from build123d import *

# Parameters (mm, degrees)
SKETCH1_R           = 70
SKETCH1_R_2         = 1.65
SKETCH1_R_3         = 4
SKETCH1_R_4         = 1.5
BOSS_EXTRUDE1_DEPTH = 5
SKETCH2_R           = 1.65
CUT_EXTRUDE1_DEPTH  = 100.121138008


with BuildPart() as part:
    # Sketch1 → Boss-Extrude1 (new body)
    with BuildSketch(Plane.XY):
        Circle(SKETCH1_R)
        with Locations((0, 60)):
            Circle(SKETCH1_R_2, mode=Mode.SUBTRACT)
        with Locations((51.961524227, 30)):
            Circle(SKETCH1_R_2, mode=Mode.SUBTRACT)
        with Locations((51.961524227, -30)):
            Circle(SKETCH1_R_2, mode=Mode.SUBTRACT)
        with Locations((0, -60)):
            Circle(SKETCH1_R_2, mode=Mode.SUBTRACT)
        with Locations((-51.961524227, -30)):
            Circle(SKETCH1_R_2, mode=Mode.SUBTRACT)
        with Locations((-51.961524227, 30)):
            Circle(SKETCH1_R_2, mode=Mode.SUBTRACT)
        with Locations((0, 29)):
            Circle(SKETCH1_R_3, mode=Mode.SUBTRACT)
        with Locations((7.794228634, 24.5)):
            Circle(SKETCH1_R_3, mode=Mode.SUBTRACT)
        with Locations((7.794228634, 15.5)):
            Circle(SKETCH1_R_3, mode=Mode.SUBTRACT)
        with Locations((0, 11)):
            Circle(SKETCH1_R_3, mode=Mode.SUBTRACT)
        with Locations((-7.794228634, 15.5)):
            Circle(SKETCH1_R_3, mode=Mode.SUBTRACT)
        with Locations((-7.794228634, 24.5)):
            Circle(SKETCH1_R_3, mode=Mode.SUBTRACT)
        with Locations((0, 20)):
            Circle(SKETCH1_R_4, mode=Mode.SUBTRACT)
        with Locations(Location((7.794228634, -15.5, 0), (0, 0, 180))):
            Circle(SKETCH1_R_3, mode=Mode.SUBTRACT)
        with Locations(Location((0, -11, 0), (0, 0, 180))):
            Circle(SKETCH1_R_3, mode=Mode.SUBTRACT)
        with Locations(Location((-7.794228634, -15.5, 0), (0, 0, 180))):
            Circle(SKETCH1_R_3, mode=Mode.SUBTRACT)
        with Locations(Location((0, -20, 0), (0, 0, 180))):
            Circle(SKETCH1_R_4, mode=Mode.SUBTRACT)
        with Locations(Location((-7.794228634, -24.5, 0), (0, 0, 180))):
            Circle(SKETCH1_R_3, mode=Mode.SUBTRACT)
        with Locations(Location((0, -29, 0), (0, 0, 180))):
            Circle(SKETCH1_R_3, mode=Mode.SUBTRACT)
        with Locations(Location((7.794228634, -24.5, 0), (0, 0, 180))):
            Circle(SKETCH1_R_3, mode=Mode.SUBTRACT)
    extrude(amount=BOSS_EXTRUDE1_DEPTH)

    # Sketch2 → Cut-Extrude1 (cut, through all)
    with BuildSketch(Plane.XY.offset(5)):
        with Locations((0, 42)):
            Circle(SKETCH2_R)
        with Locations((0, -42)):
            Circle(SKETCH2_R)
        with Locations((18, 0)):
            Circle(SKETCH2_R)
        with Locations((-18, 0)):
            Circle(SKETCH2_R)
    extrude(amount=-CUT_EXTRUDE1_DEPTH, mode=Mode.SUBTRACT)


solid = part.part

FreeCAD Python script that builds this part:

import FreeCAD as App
import Part
import Sketcher
Q = App.Units.Quantity

doc = App.newDocument("Part")
params = doc.addObject("Spreadsheet::Sheet", "Params")
for row, (alias, value) in enumerate([
    ("sketch1_diameter", "140 mm"),
    ("sketch1_diameter2", "8 mm"),
    ("sketch1_diameter3", "3 mm"),
    ("sketch1_diameter4", "3.3 mm"),
    ("pad1_length", "5 mm"),
    ("sketch2_diameter", "3.3 mm"),
], start=1):
    params.set(f"A{row}", alias)
    params.set(f"B{row}", "=" + value)
    params.setAlias(f"B{row}", alias)

body = doc.addObject("PartDesign::Body", "Body")

# Sketch on XY plane
sketch1 = doc.addObject("Sketcher::SketchObject", "Sketch")
body.addObject(sketch1)
sketch1.AttachmentSupport = (doc.XY_Plane, [""])
sketch1.MapMode = "FlatFace"
sketch1.addGeometry(Part.Circle(App.Vector(0, 0, 0), App.Vector(0, 0, 1), 70), False)
sketch1.addGeometry(Part.Circle(App.Vector(0, -60, 0), App.Vector(0, 0, 1), 1.6), False)
sketch1.addGeometry(Part.Circle(App.Vector(-52, -30, 0), App.Vector(0, 0, 1), 1.6), False)
sketch1.addGeometry(Part.Circle(App.Vector(-7.8, -24.5, 0), App.Vector(0, 0, 1), 4), False)
sketch1.addGeometry(Part.Circle(App.Vector(0, -29, 0), App.Vector(0, 0, 1), 4), False)
sketch1.addGeometry(Part.Circle(App.Vector(-7.8, -15.5, 0), App.Vector(0, 0, 1), 4), False)
sketch1.addGeometry(Part.Circle(App.Vector(0, -20, 0), App.Vector(0, 0, 1), 1.5), False)
sketch1.addGeometry(Part.Circle(App.Vector(0, -11, 0), App.Vector(0, 0, 1), 4), False)
sketch1.addGeometry(Part.Circle(App.Vector(7.8, -24.5, 0), App.Vector(0, 0, 1), 4), False)
sketch1.addGeometry(Part.Circle(App.Vector(7.8, -15.5, 0), App.Vector(0, 0, 1), 4), False)
sketch1.addGeometry(Part.Circle(App.Vector(52, -30, 0), App.Vector(0, 0, 1), 1.6), False)
sketch1.addGeometry(Part.Circle(App.Vector(-52, 30, 0), App.Vector(0, 0, 1), 1.6), False)
sketch1.addGeometry(Part.Circle(App.Vector(0, 11, 0), App.Vector(0, 0, 1), 4), False)
sketch1.addGeometry(Part.Circle(App.Vector(-7.8, 15.5, 0), App.Vector(0, 0, 1), 4), False)
sketch1.addGeometry(Part.Circle(App.Vector(0, 20, 0), App.Vector(0, 0, 1), 1.5), False)
sketch1.addGeometry(Part.Circle(App.Vector(-7.8, 24.5, 0), App.Vector(0, 0, 1), 4), False)
sketch1.addGeometry(Part.Circle(App.Vector(0, 29, 0), App.Vector(0, 0, 1), 4), False)
sketch1.addGeometry(Part.Circle(App.Vector(0, 60, 0), App.Vector(0, 0, 1), 1.6), False)
sketch1.addGeometry(Part.Circle(App.Vector(7.8, 15.5, 0), App.Vector(0, 0, 1), 4), False)
sketch1.addGeometry(Part.Circle(App.Vector(7.8, 24.5, 0), App.Vector(0, 0, 1), 4), False)
sketch1.addGeometry(Part.Circle(App.Vector(52, 30, 0), App.Vector(0, 0, 1), 1.6), False)
sketch1.addConstraint(Sketcher.Constraint("Coincident", 0, 3, -1, 1))
sketch1.addConstraint(Sketcher.Constraint("Equal", 1, 2))
sketch1.addConstraint(Sketcher.Constraint("Equal", 3, 4))
sketch1.addConstraint(Sketcher.Constraint("Equal", 4, 5))
sketch1.addConstraint(Sketcher.Constraint("Equal", 5, 7))
sketch1.addConstraint(Sketcher.Constraint("Equal", 7, 8))
sketch1.addConstraint(Sketcher.Constraint("Equal", 8, 9))
sketch1.addConstraint(Sketcher.Constraint("Equal", 2, 10))
sketch1.addConstraint(Sketcher.Constraint("Equal", 10, 11))
sketch1.addConstraint(Sketcher.Constraint("Equal", 9, 12))
sketch1.addConstraint(Sketcher.Constraint("Equal", 12, 13))
sketch1.addConstraint(Sketcher.Constraint("Equal", 6, 14))
sketch1.addConstraint(Sketcher.Constraint("Equal", 13, 15))
sketch1.addConstraint(Sketcher.Constraint("Equal", 15, 16))
sketch1.addConstraint(Sketcher.Constraint("Equal", 11, 17))
sketch1.addConstraint(Sketcher.Constraint("Equal", 16, 18))
sketch1.addConstraint(Sketcher.Constraint("Equal", 18, 19))
sketch1.addConstraint(Sketcher.Constraint("Equal", 17, 20))
sketch1.addConstraint(Sketcher.Constraint("Symmetric", 10, 3, 11, 3, -1, 1))
sketch1.addConstraint(Sketcher.Constraint("Symmetric", 7, 3, 12, 3, -1, 1))
sketch1.addConstraint(Sketcher.Constraint("Symmetric", 9, 3, 13, 3, -1, 1))
sketch1.addConstraint(Sketcher.Constraint("Symmetric", 6, 3, 14, 3, -1, 1))
sketch1.addConstraint(Sketcher.Constraint("Symmetric", 8, 3, 15, 3, -1, 1))
sketch1.addConstraint(Sketcher.Constraint("Symmetric", 4, 3, 16, 3, -1, 1))
sketch1.addConstraint(Sketcher.Constraint("Symmetric", 1, 3, 17, 3, -1, 1))
sketch1.addConstraint(Sketcher.Constraint("Symmetric", 5, 3, 18, 3, -1, 1))
sketch1.addConstraint(Sketcher.Constraint("Symmetric", 3, 3, 19, 3, -1, 1))
sketch1.addConstraint(Sketcher.Constraint("Symmetric", 2, 3, 20, 3, -1, 1))
sketch1.addConstraint(Sketcher.Constraint("Symmetric", 3, 3, 8, 3, -2))
sketch1.addConstraint(Sketcher.Constraint("Symmetric", 5, 3, 9, 3, -2))
sketch1.addConstraint(Sketcher.Constraint("Symmetric", 2, 3, 10, 3, -2))
sketch1.addConstraint(Sketcher.Constraint("PointOnObject", 1, 3, -2))
sketch1.addConstraint(Sketcher.Constraint("PointOnObject", 4, 3, -2))
sketch1.addConstraint(Sketcher.Constraint("PointOnObject", 6, 3, -2))
sketch1.addConstraint(Sketcher.Constraint("PointOnObject", 7, 3, -2))
sketch1.addConstraint(Sketcher.Constraint("Vertical", 3, 3, 5, 3))
sketch1.addConstraint(Sketcher.Constraint("Diameter", 0, Q("140 mm")))
sketch1.addConstraint(Sketcher.Constraint("Diameter", 3, Q("8 mm")))
sketch1.addConstraint(Sketcher.Constraint("Diameter", 6, Q("3 mm")))
sketch1.addConstraint(Sketcher.Constraint("Diameter", 1, Q("3.3 mm")))
sketch1.addConstraint(Sketcher.Constraint("DistanceY", 1, 3, -1, 1, Q("60 mm")))
sketch1.addConstraint(Sketcher.Constraint("DistanceY", 2, 3, -1, 1, Q("30 mm")))
sketch1.addConstraint(Sketcher.Constraint("DistanceY", 4, 3, -1, 1, Q("29 mm")))
sketch1.addConstraint(Sketcher.Constraint("DistanceY", 6, 3, -1, 1, Q("20 mm")))
sketch1.addConstraint(Sketcher.Constraint("DistanceY", 7, 3, -1, 1, Q("11 mm")))
sketch1.addConstraint(Sketcher.Constraint("DistanceY", 3, 3, 5, 3, Q("9 mm")))
sketch1.addConstraint(Sketcher.Constraint("DistanceY", 5, 3, 13, 3, Q("31 mm")))
sketch1.addConstraint(Sketcher.Constraint("DistanceX", 3, 3, -1, 1, Q("7.794229 mm")))
sketch1.addConstraint(Sketcher.Constraint("DistanceX", 2, 3, -1, 1, Q("51.961524 mm")))
sketch1.setExpression("Constraints[36]", "Params.sketch1_diameter")
sketch1.setExpression("Constraints[37]", "Params.sketch1_diameter2")
sketch1.setExpression("Constraints[38]", "Params.sketch1_diameter3")
sketch1.setExpression("Constraints[39]", "Params.sketch1_diameter4")
pad1 = doc.addObject("PartDesign::Pad", "Pad")
body.addObject(pad1)
pad1.Profile = sketch1
pad1.setExpression("Length", "Params.pad1_length")

# Sketch on XY plane
sketch2 = doc.addObject("Sketcher::SketchObject", "Sketch001")
body.addObject(sketch2)
sketch2.AttachmentSupport = (doc.XY_Plane, [""])
sketch2.MapMode = "FlatFace"
sketch2.AttachmentOffset = App.Placement(App.Vector(0, 0, 5), App.Rotation())
sketch2.addGeometry(Part.Circle(App.Vector(0, 42, 0), App.Vector(0, 0, 1), 1.6), False)
sketch2.addGeometry(Part.Circle(App.Vector(0, -42, 0), App.Vector(0, 0, 1), 1.6), False)
sketch2.addGeometry(Part.Circle(App.Vector(18, 0, 0), App.Vector(0, 0, 1), 1.6), False)
sketch2.addGeometry(Part.Circle(App.Vector(-18, 0, 0), App.Vector(0, 0, 1), 1.6), False)
sketch2.addConstraint(Sketcher.Constraint("Equal", 0, 1))
sketch2.addConstraint(Sketcher.Constraint("Equal", 1, 2))
sketch2.addConstraint(Sketcher.Constraint("Equal", 2, 3))
sketch2.addConstraint(Sketcher.Constraint("Symmetric", 0, 3, 1, 3, -1, 1))
sketch2.addConstraint(Sketcher.Constraint("Symmetric", 2, 3, 3, 3, -1, 1))
sketch2.addConstraint(Sketcher.Constraint("PointOnObject", 0, 3, -2))
sketch2.addConstraint(Sketcher.Constraint("PointOnObject", 2, 3, -1))
sketch2.addConstraint(Sketcher.Constraint("Diameter", 0, Q("3.3 mm")))
sketch2.addConstraint(Sketcher.Constraint("DistanceY", -1, 1, 0, 3, Q("42 mm")))
sketch2.addConstraint(Sketcher.Constraint("DistanceX", -1, 1, 2, 3, Q("18 mm")))
sketch2.setExpression("Constraints[7]", "Params.sketch2_diameter")
pocket1 = doc.addObject("PartDesign::Pocket", "Pocket")
body.addObject(pocket1)
pocket1.Profile = sketch2
pocket1.Type = "ThroughAll"

doc.recompute()
